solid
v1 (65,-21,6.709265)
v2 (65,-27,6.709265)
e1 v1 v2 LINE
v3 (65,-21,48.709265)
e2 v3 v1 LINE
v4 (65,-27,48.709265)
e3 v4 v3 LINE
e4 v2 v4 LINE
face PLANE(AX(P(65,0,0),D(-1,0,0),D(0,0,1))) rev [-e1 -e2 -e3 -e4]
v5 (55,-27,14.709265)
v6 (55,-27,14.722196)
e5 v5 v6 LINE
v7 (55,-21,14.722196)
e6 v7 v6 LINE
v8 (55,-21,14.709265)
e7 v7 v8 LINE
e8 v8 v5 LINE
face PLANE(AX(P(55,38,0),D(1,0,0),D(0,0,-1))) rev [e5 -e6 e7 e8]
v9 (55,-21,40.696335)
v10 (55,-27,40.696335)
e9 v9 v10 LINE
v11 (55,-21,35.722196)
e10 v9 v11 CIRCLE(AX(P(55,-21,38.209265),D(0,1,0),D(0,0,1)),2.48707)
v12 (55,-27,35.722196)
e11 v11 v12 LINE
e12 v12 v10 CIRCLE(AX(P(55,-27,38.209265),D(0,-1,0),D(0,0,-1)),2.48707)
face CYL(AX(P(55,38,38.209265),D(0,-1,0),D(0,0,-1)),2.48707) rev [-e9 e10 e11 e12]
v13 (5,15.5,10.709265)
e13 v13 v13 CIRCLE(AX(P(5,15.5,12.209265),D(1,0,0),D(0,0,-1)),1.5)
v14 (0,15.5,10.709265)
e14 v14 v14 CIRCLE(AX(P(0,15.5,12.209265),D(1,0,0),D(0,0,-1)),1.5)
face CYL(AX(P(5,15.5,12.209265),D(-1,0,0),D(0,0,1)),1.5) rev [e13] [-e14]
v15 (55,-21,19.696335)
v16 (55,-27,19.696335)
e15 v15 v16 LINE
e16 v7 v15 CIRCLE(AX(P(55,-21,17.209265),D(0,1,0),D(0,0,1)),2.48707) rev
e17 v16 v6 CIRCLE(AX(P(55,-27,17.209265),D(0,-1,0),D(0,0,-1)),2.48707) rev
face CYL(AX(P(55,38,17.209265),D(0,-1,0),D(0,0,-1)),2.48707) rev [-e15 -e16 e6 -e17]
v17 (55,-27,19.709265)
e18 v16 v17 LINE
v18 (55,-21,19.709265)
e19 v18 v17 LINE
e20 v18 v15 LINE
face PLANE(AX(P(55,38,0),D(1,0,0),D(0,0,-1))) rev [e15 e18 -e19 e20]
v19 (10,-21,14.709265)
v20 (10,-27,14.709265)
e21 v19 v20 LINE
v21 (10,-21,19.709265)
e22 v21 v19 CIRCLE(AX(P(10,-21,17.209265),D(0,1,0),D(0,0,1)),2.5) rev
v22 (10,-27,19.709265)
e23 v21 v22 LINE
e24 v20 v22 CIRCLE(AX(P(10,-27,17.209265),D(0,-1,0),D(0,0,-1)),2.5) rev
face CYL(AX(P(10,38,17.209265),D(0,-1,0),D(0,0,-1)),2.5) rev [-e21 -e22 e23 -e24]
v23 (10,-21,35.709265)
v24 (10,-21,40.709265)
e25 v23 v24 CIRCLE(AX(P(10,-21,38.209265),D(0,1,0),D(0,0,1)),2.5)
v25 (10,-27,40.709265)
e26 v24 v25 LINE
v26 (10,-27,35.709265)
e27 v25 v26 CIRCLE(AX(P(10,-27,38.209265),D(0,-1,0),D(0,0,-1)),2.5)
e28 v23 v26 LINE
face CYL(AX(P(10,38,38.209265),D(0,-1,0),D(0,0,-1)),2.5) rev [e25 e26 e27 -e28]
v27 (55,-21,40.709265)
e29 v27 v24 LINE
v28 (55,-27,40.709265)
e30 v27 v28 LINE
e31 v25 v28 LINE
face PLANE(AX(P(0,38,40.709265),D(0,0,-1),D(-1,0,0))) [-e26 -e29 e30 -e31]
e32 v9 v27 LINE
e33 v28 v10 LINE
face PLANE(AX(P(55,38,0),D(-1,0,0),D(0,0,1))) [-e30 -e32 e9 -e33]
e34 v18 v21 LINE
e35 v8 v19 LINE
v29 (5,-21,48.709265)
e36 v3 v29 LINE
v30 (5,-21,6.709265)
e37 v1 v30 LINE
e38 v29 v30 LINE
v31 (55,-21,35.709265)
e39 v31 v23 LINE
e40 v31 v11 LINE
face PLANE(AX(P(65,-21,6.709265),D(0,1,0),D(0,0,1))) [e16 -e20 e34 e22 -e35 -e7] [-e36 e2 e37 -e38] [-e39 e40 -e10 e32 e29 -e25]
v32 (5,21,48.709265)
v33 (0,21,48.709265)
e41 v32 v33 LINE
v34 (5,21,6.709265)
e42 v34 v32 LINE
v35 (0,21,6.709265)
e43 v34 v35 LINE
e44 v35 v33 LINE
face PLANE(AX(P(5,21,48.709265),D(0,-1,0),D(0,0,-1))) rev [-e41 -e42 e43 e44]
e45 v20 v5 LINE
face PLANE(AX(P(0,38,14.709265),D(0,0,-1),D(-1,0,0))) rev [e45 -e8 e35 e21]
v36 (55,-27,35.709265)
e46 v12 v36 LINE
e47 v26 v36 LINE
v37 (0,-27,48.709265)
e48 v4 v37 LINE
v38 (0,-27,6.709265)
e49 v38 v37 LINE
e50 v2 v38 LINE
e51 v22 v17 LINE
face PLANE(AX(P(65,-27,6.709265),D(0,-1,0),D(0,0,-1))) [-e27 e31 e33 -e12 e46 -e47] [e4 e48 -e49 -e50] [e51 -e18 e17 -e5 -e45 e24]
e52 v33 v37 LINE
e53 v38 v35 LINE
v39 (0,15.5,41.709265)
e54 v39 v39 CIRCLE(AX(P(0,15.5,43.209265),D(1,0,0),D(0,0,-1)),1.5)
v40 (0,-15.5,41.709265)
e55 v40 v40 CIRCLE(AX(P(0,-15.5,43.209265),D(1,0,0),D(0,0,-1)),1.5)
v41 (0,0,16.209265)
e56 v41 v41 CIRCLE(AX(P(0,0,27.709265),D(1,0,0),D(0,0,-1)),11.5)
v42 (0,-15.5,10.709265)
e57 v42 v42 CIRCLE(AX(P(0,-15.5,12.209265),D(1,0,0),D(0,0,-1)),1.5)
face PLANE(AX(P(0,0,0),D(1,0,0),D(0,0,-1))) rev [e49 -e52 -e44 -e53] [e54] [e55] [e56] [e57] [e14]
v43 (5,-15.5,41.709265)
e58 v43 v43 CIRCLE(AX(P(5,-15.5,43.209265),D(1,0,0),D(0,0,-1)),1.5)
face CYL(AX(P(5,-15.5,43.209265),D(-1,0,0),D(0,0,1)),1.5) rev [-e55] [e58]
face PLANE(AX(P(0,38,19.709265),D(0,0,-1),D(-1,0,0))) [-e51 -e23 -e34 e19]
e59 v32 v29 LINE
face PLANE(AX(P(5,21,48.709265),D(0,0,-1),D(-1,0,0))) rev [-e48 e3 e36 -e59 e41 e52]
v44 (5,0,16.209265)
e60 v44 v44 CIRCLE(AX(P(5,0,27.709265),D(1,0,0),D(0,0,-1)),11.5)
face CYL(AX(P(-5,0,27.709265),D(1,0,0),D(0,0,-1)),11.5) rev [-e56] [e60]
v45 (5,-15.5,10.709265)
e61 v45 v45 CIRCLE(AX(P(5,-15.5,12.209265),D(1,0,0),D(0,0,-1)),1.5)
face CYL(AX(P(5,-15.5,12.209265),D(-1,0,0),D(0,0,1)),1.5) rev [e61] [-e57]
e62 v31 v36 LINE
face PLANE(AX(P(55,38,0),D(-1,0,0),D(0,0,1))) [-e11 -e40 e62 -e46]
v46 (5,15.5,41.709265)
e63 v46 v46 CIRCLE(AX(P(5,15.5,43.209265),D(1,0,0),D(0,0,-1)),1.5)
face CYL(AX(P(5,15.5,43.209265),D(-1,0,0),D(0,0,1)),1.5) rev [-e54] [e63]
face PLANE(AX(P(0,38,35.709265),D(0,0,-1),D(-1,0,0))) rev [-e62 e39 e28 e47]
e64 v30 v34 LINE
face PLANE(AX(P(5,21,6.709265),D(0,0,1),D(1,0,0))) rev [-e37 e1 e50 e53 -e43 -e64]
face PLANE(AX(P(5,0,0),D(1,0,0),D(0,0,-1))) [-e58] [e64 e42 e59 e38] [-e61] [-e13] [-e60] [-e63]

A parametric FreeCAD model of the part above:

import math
import FreeCAD as App
import Part
import Sketcher


def add_polygon(sketch, points):
    """Adds a closed chain of lines whose ends are joined by coincident constraints."""
    first, n = sketch.GeometryCount, len(points)
    for a, b in zip(points, points[1:] + points[:1]):
        sketch.addGeometry(Part.LineSegment(App.Vector(*a, 0), App.Vector(*b, 0)), False)
    for i in range(n):
        sketch.addConstraint(Sketcher.Constraint("Coincident", first + i, 2, first + (i + 1) % n, 1))

doc = App.newDocument("Part")
body = doc.addObject("PartDesign::Body", "Body")

# Sketch on YZ plane
sketch1 = doc.addObject("Sketcher::SketchObject", "Sketch")
body.addObject(sketch1)
sketch1.AttachmentSupport = (doc.YZ_Plane, [""])
sketch1.MapMode = "FlatFace"
add_polygon(sketch1, [(21, 48.7), (-21, 48.7), (-21, 6.7), (21, 6.7)])  # lines 0-3
sketch1.addGeometry(Part.Circle(App.Vector(-15.5, 43.2, 0), App.Vector(0, 0, 1), 1.5), False)  # 4
sketch1.addGeometry(Part.Circle(App.Vector(-15.5, 12.2, 0), App.Vector(0, 0, 1), 1.5), False)  # 5
sketch1.addGeometry(Part.Circle(App.Vector(15.5, 43.2, 0), App.Vector(0, 0, 1), 1.5), False)  # 6
sketch1.addGeometry(Part.Circle(App.Vector(15.5, 12.2, 0), App.Vector(0, 0, 1), 1.5), False)  # 7
sketch1.addConstraint([
    Sketcher.Constraint("Horizontal", 0),
    Sketcher.Constraint("Vertical", 1),
    Sketcher.Constraint("Horizontal", 2),
    Sketcher.Constraint("Vertical", 3),
    Sketcher.Constraint("Equal", 4, 5),
    Sketcher.Constraint("Equal", 5, 6),
    Sketcher.Constraint("Equal", 6, 7),
    Sketcher.Constraint("Symmetric", 4, 3, 6, 3, -2),
    Sketcher.Constraint("Symmetric", 5, 3, 7, 3, -2),
    Sketcher.Constraint("Vertical", 4, 3, 5, 3),
    Sketcher.Constraint("Equal", 2, 1),
    Sketcher.Constraint("Diameter", 4, 3.0),
    Sketcher.Constraint("DistanceX", 0, 2, 0, 1, 42.0),
    Sketcher.Constraint("DistanceX", 0, 2, -1, 1, 21.0),
    Sketcher.Constraint("DistanceY", 5, 3, 4, 3, 31.0),
    Sketcher.Constraint("DistanceX", 4, 3, 6, 3, 31.0),
    Sketcher.Constraint("DistanceY", 4, 3, 0, 2, 5.5),
    Sketcher.Constraint("DistanceY", -1, 1, 4, 3, 43.209265),
])
pad1 = doc.addObject("PartDesign::Pad", "Pad")
body.addObject(pad1)
pad1.Profile = sketch1
pad1.Length = 5

# Sketch on YZ plane
sketch2 = doc.addObject("Sketcher::SketchObject", "Sketch001")
body.addObject(sketch2)
sketch2.AttachmentSupport = (doc.YZ_Plane, [""])
sketch2.MapMode = "FlatFace"
add_polygon(sketch2, [(-21, 7), (-27, 7), (-27, 49), (-21, 49)])  # lines 0-3
sketch2.addConstraint([
    Sketcher.Constraint("Horizontal", 0),
    Sketcher.Constraint("Vertical", 1),
    Sketcher.Constraint("Horizontal", 2),
    Sketcher.Constraint("Vertical", 3),
    Sketcher.Constraint("DistanceX", 0, 2, 0, 1, 6.0),
    Sketcher.Constraint("DistanceY", 1, 1, 1, 2, 42.0),
    Sketcher.Constraint("DistanceX", 0, 2, -1, 1, 27.0),
    Sketcher.Constraint("DistanceY", -1, 1, 0, 2, 6.709265),
])
pad2 = doc.addObject("PartDesign::Pad", "Pad001")
body.addObject(pad2)
pad2.Profile = sketch2
pad2.Length = 65

# Sketch on XZ plane
sketch3 = doc.addObject("Sketcher::SketchObject", "Sketch002")
body.addObject(sketch3)
sketch3.AttachmentSupport = (doc.XZ_Plane, [""])
sketch3.MapMode = "FlatFace"
sketch3.AttachmentOffset = App.Placement(App.Vector(0, 0, 27), App.Rotation())
sketch3.addGeometry([
    Part.LineSegment(App.Vector(10, 35.709, 0), App.Vector(55, 35.709, 0)),  # 0
    Part.LineSegment(App.Vector(55, 35.709, 0), App.Vector(55, 35.722, 0)),  # 1
    Part.ArcOfCircle(Part.Circle(App.Vector(55, 38.209, 0), App.Vector(0, 0, 1), 2.487), math.radians(-90), math.radians(90)),  # 2
    Part.LineSegment(App.Vector(55, 40.696, 0), App.Vector(55, 40.709, 0)),  # 3
    Part.LineSegment(App.Vector(55, 40.709, 0), App.Vector(10, 40.709, 0)),  # 4
    Part.ArcOfCircle(Part.Circle(App.Vector(10, 38.209, 0), App.Vector(0, 0, 1), 2.5), math.radians(90), math.radians(180)),  # 5
    Part.ArcOfCircle(Part.Circle(App.Vector(10, 38.209, 0), App.Vector(0, 0, 1), 2.5), math.radians(180), math.radians(270)),  # 6
    Part.LineSegment(App.Vector(55, 19.696, 0), App.Vector(55, 19.709, 0)),  # 7
    Part.LineSegment(App.Vector(55, 19.709, 0), App.Vector(10, 19.709, 0)),  # 8
    Part.ArcOfCircle(Part.Circle(App.Vector(10, 17.209, 0), App.Vector(0, 0, 1), 2.5), math.radians(90), math.radians(180)),  # 9
    Part.ArcOfCircle(Part.Circle(App.Vector(10, 17.209, 0), App.Vector(0, 0, 1), 2.5), math.radians(180), math.radians(270)),  # 10
    Part.LineSegment(App.Vector(10, 14.709, 0), App.Vector(55, 14.709, 0)),  # 11
    Part.LineSegment(App.Vector(55, 14.709, 0), App.Vector(55, 14.722, 0)),  # 12
    Part.ArcOfCircle(Part.Circle(App.Vector(55, 17.209, 0), App.Vector(0, 0, 1), 2.487), math.radians(-90), math.radians(90)),  # 13
], False)
sketch3.addConstraint([
    Sketcher.Constraint("Coincident", 0, 2, 1, 1),
    Sketcher.Constraint("Coincident", 1, 2, 2, 1),
    Sketcher.Constraint("Coincident", 2, 2, 3, 1),
    Sketcher.Constraint("Coincident", 3, 2, 4, 1),
    Sketcher.Constraint("Tangent", 4, 2, 5, 1),
    Sketcher.Constraint("Tangent", 5, 2, 6, 1),
    Sketcher.Constraint("Tangent", 6, 2, 0, 1),
    Sketcher.Constraint("Coincident", 7, 2, 8, 1),
    Sketcher.Constraint("Tangent", 8, 2, 9, 1),
    Sketcher.Constraint("Tangent", 9, 2, 10, 1),
    Sketcher.Constraint("Tangent", 10, 2, 11, 1),
    Sketcher.Constraint("Coincident", 11, 2, 12, 1),
    Sketcher.Constraint("Coincident", 12, 2, 13, 1),
    Sketcher.Constraint("Coincident", 13, 2, 7, 1),
    Sketcher.Constraint("Horizontal", 0),
    Sketcher.Constraint("Vertical", 1),
    Sketcher.Constraint("Vertical", 3),
    Sketcher.Constraint("Horizontal", 4),
    Sketcher.Constraint("Vertical", 7),
    Sketcher.Constraint("Horizontal", 8),
    Sketcher.Constraint("Horizontal", 11),
    Sketcher.Constraint("Vertical", 12),
    Sketcher.Constraint("Equal", 5, 6),
    Sketcher.Constraint("Equal", 6, 9),
    Sketcher.Constraint("Equal", 9, 10),
    Sketcher.Constraint("Equal", 2, 13),
    Sketcher.Constraint("Horizontal", 2, 3, 5, 3),
    Sketcher.Constraint("Horizontal", 10, 3, 13, 3),
    Sketcher.Constraint("Horizontal", 6, 3, 5, 2),
    Sketcher.Constraint("Horizontal", 13, 3, 9, 2),
    Sketcher.Constraint("Vertical", 6, 3, 9, 3),
    Sketcher.Constraint("Vertical", 2, 3, 13, 3),
    Sketcher.Constraint("Vertical", 13, 3, 0, 2),
    Sketcher.Constraint("Vertical", 1, 2, 2, 2),
    Sketcher.Constraint("Vertical", 3, 2, 7, 2),
    Sketcher.Constraint("Vertical", 7, 2, 11, 2),
    Sketcher.Constraint("Radius", 5, 2.5),
    Sketcher.Constraint("DistanceX", 0, 1, 0, 2, 45.0),
    Sketcher.Constraint("DistanceX", -1, 1, 2, 3, 55.0),
    Sketcher.Constraint("DistanceY", 9, 3, 5, 3, 21.0),
    Sketcher.Constraint("Radius", 2, 2.48707),
    Sketcher.Constraint("DistanceY", -1, 1, 2, 3, 38.209265),
])
pocket1 = doc.addObject("PartDesign::Pocket", "Pocket")
body.addObject(pocket1)
pocket1.Profile = sketch3
pocket1.Length = 65

# Sketch on YZ plane
sketch4 = doc.addObject("Sketcher::SketchObject", "Sketch003")
body.addObject(sketch4)
sketch4.AttachmentSupport = (doc.YZ_Plane, [""])
sketch4.MapMode = "FlatFace"
sketch4.AttachmentOffset = App.Placement(App.Vector(0, 0, 5), App.Rotation())
sketch4.addGeometry(Part.Circle(App.Vector(0, 28, 0), App.Vector(0, 0, 1), 12), False)
sketch4.addConstraint([
    Sketcher.Constraint("PointOnObject", 0, 3, -2),
    Sketcher.Constraint("Diameter", 0, 23.0),
    Sketcher.Constraint("DistanceY", -1, 1, 0, 3, 27.709265),
])
pocket2 = doc.addObject("PartDesign::Pocket", "Pocket001")
body.addObject(pocket2)
pocket2.Profile = sketch4
pocket2.Length = 10

doc.recompute()
